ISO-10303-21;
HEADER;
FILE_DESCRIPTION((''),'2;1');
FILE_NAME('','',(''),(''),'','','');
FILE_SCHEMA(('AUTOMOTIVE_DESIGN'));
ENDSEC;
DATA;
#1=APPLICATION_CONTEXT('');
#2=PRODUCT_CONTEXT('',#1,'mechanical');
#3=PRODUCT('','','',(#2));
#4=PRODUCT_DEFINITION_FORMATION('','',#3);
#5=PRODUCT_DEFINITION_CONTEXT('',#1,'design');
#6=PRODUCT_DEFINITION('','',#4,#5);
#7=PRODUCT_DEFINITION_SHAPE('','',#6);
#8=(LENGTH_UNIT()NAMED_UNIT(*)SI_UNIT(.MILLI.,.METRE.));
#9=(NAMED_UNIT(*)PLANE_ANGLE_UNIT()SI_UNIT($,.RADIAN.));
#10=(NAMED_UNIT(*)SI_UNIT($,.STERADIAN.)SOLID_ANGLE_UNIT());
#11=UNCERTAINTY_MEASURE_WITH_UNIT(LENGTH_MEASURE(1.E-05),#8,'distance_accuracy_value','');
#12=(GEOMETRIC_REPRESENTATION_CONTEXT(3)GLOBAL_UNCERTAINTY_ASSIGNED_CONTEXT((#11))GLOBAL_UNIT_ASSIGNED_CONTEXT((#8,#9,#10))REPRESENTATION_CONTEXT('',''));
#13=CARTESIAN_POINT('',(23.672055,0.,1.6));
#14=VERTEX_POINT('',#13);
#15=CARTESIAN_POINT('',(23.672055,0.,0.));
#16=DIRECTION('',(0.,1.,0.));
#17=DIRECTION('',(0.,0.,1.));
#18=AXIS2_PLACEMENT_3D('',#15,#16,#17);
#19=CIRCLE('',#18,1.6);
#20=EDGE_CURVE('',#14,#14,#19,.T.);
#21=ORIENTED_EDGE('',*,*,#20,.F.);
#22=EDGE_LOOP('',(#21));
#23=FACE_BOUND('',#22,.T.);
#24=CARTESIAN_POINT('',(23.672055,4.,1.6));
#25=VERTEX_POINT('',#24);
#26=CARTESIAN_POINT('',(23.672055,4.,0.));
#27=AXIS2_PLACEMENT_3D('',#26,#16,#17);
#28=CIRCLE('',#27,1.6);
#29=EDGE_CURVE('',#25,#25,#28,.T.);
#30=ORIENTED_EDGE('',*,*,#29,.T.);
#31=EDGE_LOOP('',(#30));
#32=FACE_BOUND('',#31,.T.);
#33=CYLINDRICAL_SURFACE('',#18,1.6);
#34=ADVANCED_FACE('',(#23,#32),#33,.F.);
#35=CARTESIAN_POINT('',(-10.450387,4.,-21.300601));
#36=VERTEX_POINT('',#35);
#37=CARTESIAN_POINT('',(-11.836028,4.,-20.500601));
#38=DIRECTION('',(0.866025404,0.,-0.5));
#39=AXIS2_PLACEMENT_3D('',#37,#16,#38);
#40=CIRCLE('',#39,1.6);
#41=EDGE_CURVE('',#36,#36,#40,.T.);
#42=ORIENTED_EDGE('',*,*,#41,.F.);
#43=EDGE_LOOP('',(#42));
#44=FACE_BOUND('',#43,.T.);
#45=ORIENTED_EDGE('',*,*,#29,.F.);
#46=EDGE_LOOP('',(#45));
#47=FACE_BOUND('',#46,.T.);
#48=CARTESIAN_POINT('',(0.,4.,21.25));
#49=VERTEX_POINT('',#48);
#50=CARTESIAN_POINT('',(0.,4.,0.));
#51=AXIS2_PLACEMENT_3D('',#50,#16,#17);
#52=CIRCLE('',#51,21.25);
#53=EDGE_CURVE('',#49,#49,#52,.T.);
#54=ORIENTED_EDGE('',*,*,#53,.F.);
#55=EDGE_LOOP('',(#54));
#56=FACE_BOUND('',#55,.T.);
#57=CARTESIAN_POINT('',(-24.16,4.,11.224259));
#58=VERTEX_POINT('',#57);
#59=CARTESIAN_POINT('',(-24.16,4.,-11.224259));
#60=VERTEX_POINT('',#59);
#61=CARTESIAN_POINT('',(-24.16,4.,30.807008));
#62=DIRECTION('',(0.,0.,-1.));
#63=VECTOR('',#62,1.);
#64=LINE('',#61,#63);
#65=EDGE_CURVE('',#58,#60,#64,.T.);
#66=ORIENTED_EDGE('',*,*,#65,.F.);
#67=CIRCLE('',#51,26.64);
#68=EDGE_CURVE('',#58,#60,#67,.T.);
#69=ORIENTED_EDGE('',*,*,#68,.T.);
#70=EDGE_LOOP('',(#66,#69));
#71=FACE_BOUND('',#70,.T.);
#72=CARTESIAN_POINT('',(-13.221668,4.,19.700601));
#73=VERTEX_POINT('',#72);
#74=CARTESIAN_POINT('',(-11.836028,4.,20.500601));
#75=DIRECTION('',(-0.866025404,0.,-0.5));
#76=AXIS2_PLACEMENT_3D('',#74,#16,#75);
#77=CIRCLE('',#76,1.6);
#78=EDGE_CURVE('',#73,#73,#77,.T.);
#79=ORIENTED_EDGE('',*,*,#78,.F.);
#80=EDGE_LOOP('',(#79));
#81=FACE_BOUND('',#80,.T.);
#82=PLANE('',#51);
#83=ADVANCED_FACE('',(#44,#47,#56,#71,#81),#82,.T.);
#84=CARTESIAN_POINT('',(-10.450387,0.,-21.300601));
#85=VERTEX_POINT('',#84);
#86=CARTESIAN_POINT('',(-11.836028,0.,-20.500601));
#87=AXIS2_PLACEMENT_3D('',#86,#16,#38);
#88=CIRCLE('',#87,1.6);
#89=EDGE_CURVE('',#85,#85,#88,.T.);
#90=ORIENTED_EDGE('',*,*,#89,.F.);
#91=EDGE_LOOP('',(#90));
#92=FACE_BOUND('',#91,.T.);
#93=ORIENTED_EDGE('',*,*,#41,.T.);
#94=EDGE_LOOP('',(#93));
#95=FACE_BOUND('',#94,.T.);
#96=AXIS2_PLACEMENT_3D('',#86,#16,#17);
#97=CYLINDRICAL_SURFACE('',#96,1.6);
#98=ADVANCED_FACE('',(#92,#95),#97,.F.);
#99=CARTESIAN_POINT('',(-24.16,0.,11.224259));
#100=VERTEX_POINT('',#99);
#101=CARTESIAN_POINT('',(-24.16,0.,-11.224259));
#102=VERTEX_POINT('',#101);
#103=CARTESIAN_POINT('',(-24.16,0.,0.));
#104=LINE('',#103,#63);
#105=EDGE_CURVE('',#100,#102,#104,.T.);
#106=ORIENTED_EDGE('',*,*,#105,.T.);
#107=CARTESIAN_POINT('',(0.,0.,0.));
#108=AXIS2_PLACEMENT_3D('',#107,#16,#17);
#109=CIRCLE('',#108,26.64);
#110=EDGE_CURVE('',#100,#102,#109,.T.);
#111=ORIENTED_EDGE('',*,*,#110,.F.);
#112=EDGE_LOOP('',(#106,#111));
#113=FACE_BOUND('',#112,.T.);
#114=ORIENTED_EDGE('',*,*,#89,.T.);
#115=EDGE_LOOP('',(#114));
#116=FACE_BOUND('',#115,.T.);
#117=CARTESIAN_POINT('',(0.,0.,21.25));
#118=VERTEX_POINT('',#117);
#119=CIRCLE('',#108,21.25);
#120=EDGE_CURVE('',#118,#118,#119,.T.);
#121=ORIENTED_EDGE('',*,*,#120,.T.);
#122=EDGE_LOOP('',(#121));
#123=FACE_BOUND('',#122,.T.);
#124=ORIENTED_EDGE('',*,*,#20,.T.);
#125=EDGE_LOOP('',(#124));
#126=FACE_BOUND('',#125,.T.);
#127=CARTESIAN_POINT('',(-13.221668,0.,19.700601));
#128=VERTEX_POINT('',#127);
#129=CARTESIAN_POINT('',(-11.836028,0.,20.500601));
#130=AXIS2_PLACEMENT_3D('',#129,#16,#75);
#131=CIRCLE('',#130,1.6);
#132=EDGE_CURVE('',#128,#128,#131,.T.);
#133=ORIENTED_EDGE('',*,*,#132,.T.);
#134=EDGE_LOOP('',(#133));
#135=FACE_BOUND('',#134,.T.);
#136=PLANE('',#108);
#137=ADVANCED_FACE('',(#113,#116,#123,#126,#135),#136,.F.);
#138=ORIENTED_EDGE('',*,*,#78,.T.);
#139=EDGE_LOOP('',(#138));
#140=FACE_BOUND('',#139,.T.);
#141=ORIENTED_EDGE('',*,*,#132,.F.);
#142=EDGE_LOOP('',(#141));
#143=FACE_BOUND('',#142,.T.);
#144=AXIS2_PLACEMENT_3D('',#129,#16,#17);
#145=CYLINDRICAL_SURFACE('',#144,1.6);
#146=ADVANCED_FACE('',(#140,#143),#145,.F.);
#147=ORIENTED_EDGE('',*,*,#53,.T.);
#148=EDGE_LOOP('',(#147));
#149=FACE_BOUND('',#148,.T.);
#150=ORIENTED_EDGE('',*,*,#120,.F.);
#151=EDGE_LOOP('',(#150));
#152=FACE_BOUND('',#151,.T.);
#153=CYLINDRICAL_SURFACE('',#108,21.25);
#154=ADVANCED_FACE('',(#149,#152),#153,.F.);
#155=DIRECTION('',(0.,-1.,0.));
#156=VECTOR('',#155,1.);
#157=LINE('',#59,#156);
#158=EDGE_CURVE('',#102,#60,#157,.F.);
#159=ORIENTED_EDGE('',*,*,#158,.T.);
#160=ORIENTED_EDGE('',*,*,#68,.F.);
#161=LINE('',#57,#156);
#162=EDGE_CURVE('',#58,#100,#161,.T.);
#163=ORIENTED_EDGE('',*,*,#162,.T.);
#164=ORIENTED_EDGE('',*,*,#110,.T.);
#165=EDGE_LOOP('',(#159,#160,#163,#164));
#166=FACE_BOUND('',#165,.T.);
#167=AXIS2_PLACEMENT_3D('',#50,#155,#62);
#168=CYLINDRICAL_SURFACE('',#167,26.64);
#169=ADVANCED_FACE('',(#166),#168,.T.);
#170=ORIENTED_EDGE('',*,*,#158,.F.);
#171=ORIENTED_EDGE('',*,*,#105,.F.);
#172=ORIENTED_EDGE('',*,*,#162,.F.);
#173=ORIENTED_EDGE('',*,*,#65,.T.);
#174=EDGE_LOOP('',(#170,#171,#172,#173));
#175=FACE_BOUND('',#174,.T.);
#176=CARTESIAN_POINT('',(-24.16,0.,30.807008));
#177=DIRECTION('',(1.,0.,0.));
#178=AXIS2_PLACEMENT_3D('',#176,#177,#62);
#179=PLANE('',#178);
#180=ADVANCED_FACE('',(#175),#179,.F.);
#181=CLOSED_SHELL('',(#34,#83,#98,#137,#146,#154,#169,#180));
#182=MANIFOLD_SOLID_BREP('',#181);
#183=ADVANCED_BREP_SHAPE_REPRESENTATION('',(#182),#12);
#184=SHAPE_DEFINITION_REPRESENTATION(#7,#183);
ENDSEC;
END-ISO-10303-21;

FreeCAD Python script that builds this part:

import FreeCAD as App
import Part
import Sketcher

V = App.Vector


def add_polygon(sketch, points):
    """Adds a closed chain of lines whose ends are joined by coincident constraints."""
    first, n = sketch.GeometryCount, len(points)
    for a, b in zip(points, points[1:] + points[:1]):
        sketch.addGeometry(Part.LineSegment(App.Vector(*a, 0), App.Vector(*b, 0)), False)
    for i in range(n):
        sketch.addConstraint(Sketcher.Constraint("Coincident", first + i, 2, first + (i + 1) % n, 1))

doc = App.newDocument("Part")
body = doc.addObject("PartDesign::Body", "Body")

# Sketch on XZ plane
sketch1 = doc.addObject("Sketcher::SketchObject", "Sketch")
body.addObject(sketch1)
sketch1.AttachmentSupport = (doc.XZ_Plane, [""])
sketch1.MapMode = "FlatFace"
sketch1.addGeometry(Part.Circle(V(0, 0, 0), V(0, 0, 1), 27), False)
sketch1.addConstraint([
    Sketcher.Constraint("Coincident", 0, 3, -1, 1),
    Sketcher.Constraint("Diameter", 0, 53.28),
])
pad1 = doc.addObject("PartDesign::Pad", "Pad")
body.addObject(pad1)
pad1.Profile = sketch1
pad1.Length = 4
pad1.Reversed = True

# Sketch on XZ plane
sketch2 = doc.addObject("Sketcher::SketchObject", "Sketch001")
body.addObject(sketch2)
sketch2.AttachmentSupport = (doc.XZ_Plane, [""])
sketch2.MapMode = "FlatFace"
sketch2.AttachmentOffset = App.Placement(V(0, 0, -4), App.Rotation())
sketch2.addGeometry(Part.Circle(V(0, 0, 0), V(0, 0, 1), 21), False)
sketch2.addConstraint([
    Sketcher.Constraint("Coincident", 0, 3, -1, 1),
    Sketcher.Constraint("Diameter", 0, 42.5),
])
pocket1 = doc.addObject("PartDesign::Pocket", "Pocket")
body.addObject(pocket1)
pocket1.Profile = sketch2
pocket1.Length = 4
pocket1.Reversed = True

# Sketch on XZ plane
sketch3 = doc.addObject("Sketcher::SketchObject", "Sketch002")
body.addObject(sketch3)
sketch3.AttachmentSupport = (doc.XZ_Plane, [""])
sketch3.MapMode = "FlatFace"
sketch3.AttachmentOffset = App.Placement(V(0, 0, -4), App.Rotation())
sketch3.addGeometry(Part.Circle(V(23.7, 0, 0), V(0, 0, 1), 1.6), False)
sketch3.addConstraint([
    Sketcher.Constraint("PointOnObject", 0, 3, -1),
    Sketcher.Constraint("Diameter", 0, 3.2),
    Sketcher.Constraint("DistanceX", -1, 1, 0, 3, 23.672055),
])
pocket2 = doc.addObject("PartDesign::Pocket", "Pocket001")
body.addObject(pocket2)
pocket2.Profile = sketch3
pocket2.Length = 4
pocket2.Reversed = True
doc.recompute()

polarpattern = doc.addObject("PartDesign::PolarPattern", "PolarPattern")
body.addObject(polarpattern)
polarpattern.Originals = [pocket2]
polarpattern.Axis = (doc.Y_Axis, [""])
polarpattern.Angle = 360
polarpattern.Occurrences = 3
body.Tip = polarpattern

# Sketch on XZ plane
sketch4 = doc.addObject("Sketcher::SketchObject", "Sketch003")
body.addObject(sketch4)
sketch4.AttachmentSupport = (doc.XZ_Plane, [""])
sketch4.MapMode = "FlatFace"
sketch4.AttachmentOffset = App.Placement(V(0, 0, -4), App.Rotation())
add_polygon(sketch4, [(-41, -28), (-41, 31), (-24, 31), (-24, -28)])  # lines 0-3
sketch4.addConstraint([
    Sketcher.Constraint("Vertical", 0),
    Sketcher.Constraint("Horizontal", 1),
    Sketcher.Constraint("Vertical", 2),
    Sketcher.Constraint("Horizontal", 3),
    Sketcher.Constraint("DistanceX", 1, 2, -1, 1, 24.16),
    Sketcher.Constraint("DistanceX", 1, 1, 1, 2, 17.203489),
    Sketcher.Constraint("DistanceY", 0, 1, 0, 2, 59.100655),
    Sketcher.Constraint("DistanceY", -1, 1, 0, 2, 30.807008),
])
pocket3 = doc.addObject("PartDesign::Pocket", "Pocket002")
body.addObject(pocket3)
pocket3.Profile = sketch4
pocket3.Length = 4
pocket3.Reversed = True

doc.recompute()
